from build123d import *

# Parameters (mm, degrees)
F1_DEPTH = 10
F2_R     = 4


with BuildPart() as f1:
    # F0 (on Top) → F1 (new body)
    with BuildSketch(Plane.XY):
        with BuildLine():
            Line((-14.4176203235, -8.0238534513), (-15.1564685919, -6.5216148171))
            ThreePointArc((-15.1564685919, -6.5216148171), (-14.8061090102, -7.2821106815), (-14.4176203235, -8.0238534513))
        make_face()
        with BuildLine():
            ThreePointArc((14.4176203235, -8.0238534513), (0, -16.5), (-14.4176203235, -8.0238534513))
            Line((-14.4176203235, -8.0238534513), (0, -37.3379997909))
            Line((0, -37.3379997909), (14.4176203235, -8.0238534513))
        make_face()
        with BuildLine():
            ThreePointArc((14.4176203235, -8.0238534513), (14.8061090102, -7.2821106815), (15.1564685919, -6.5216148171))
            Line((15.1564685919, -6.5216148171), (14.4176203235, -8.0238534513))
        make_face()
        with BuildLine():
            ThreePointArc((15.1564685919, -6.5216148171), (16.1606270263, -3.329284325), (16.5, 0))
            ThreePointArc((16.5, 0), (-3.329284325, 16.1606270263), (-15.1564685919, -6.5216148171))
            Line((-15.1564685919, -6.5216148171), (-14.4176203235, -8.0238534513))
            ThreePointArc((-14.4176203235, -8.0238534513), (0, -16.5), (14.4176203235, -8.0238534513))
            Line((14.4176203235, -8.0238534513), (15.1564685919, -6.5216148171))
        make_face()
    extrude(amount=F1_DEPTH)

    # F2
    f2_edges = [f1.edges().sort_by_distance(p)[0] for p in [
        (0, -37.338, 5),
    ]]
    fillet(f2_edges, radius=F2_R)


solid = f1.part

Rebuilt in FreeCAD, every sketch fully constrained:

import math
import FreeCAD as App
import Part
import Sketcher

V = App.Vector


def edges_at(feature, points):
    """Names of the edges that pass closest to the given points."""
    edges = feature.Shape.Edges
    near = lambda p: min(range(len(edges)), key=lambda i: edges[i].distToShape(Part.Vertex(*p))[0])
    return sorted({f"Edge{near(p) + 1}" for p in points})

doc = App.newDocument("Part")
body = doc.addObject("PartDesign::Body", "Body")

# Sketch on XY plane
sketch1 = doc.addObject("Sketcher::SketchObject", "Sketch")
body.addObject(sketch1)
sketch1.AttachmentSupport = (doc.XY_Plane, [""])
sketch1.MapMode = "FlatFace"
sketch1.addGeometry(Part.ArcOfCircle(Part.Circle(V(0, 0, 0), V(0, 0, 1), 16.5), math.radians(-156.72), math.radians(-150.9)), False)
sketch1.addGeometry(Part.LineSegment(V(-14.4, -8, 0), V(0, -37.3, 0)), False)
sketch1.addGeometry(Part.LineSegment(V(0, -37.3, 0), V(14.4, -8, 0)), False)
sketch1.addGeometry(Part.ArcOfCircle(Part.Circle(V(0, 0, 0), V(0, 0, 1), 16.5), math.radians(-29.1), math.radians(-23.28)), False)
sketch1.addGeometry(Part.ArcOfCircle(Part.Circle(V(0, 0, 0), V(0, 0, 1), 16.5), math.radians(-23), math.radians(0)), False)
sketch1.addGeometry(Part.ArcOfCircle(Part.Circle(V(0, 0, 0), V(0, 0, 1), 16.5), math.radians(0), math.radians(203)), False)
sketch1.addConstraint(Sketcher.Constraint("Coincident", 0, 2, 1, 1))
sketch1.addConstraint(Sketcher.Constraint("Coincident", 1, 2, 2, 1))
sketch1.addConstraint(Sketcher.Constraint("Coincident", 2, 2, 3, 1))
sketch1.addConstraint(Sketcher.Constraint("Tangent", 3, 2, 4, 1))
sketch1.addConstraint(Sketcher.Constraint("Tangent", 4, 2, 5, 1))
sketch1.addConstraint(Sketcher.Constraint("Tangent", 5, 2, 0, 1))
sketch1.addConstraint(Sketcher.Constraint("Coincident", 0, 3, -1, 1))
sketch1.addConstraint(Sketcher.Constraint("Coincident", 3, 3, -1, 1))
sketch1.addConstraint(Sketcher.Constraint("Equal", 0, 3))
sketch1.addConstraint(Sketcher.Constraint("PointOnObject", 1, 2, -2))
sketch1.addConstraint(Sketcher.Constraint("PointOnObject", 4, 2, -1))
sketch1.addConstraint(Sketcher.Constraint("Horizontal", 0, 2, 2, 2))
sketch1.addConstraint(Sketcher.Constraint("Horizontal", 3, 2, 5, 2))
sketch1.addConstraint(Sketcher.Constraint("Radius", 0, 16.5))
sketch1.addConstraint(Sketcher.Constraint("DistanceY", 1, 2, -1, 1, 37.338))
sketch1.addConstraint(Sketcher.Constraint("DistanceX", 0, 2, -1, 1, 14.41762))
sketch1.addConstraint(Sketcher.Constraint("DistanceX", -1, 1, 3, 2, 15.156469))
pad1 = doc.addObject("PartDesign::Pad", "Pad")
body.addObject(pad1)
pad1.Profile = sketch1
pad1.Length = 10
doc.recompute()

fillet = doc.addObject("PartDesign::Fillet", "Fillet")
body.addObject(fillet)
fillet.Base = (pad1, edges_at(pad1, [(0, -37.338, 5)]))
fillet.Radius = 4

doc.recompute()
